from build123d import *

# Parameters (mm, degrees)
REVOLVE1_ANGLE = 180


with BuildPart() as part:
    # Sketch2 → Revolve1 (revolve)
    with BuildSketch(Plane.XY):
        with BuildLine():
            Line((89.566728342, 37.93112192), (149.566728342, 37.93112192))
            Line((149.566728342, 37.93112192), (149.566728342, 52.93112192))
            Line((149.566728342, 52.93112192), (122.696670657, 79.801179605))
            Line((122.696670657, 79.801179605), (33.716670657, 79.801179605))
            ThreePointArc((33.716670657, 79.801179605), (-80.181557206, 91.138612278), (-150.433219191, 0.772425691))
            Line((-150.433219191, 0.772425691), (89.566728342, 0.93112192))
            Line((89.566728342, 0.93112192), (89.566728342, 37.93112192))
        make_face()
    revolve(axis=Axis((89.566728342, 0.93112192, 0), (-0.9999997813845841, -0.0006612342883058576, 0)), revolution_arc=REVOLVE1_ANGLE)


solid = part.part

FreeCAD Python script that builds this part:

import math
import FreeCAD as App
import Part
import Sketcher

V = App.Vector
Q = App.Units.Quantity

doc = App.newDocument("Part")
body = doc.addObject("PartDesign::Body", "Body")

sketch1 = doc.addObject("Sketcher::SketchObject", "Sketch")
body.addObject(sketch1)
sketch1.AttachmentSupport = (doc.XY_Plane, [""])
sketch1.MapMode = "FlatFace"
sketch1.addGeometry([
    Part.LineSegment(V(89.566728, 37.931122, 0), V(149.566728, 37.931122, 0)),
    Part.LineSegment(V(149.566728, 37.931122, 0), V(149.566728, 52.931122, 0)),
    Part.LineSegment(V(149.566728, 52.931122, 0), V(122.696671, 79.80118, 0)),
    Part.LineSegment(V(122.696671, 79.80118, 0), V(33.716671, 79.80118, 0)),
    Part.ArcOfCircle(Part.Circle(V(-33.496517, -17.645147, 0), V(0, 0, 1), 118.378204), math.radians(55.404195), math.radians(171.049421)),
    Part.LineSegment(V(-150.433219, 0.772426, 0), V(89.566728, 0.931122, 0)),
    Part.LineSegment(V(89.566728, 0.931122, 0), V(89.566728, 37.931122, 0)),
], False)
sketch1.addGeometry(Part.LineSegment(V(149.601086, 0.970819, 0), V(-150.433219, 0.772426, 0)), True)
sketch1.addConstraint([
    Sketcher.Constraint("Coincident", 0, 2, 1, 1),
    Sketcher.Constraint("Coincident", 1, 2, 2, 1),
    Sketcher.Constraint("Coincident", 2, 2, 3, 1),
    Sketcher.Constraint("Coincident", 3, 2, 4, 1),
    Sketcher.Constraint("Coincident", 4, 2, 5, 1),
    Sketcher.Constraint("Coincident", 5, 2, 6, 1),
    Sketcher.Constraint("Coincident", 6, 2, 0, 1),
    Sketcher.Constraint("Horizontal", 0),
    Sketcher.Constraint("Vertical", 1),
    Sketcher.Constraint("Horizontal", 3),
    Sketcher.Constraint("Vertical", 6),
    Sketcher.Constraint("Coincident", 7, 2, 4, 2),
    Sketcher.Constraint("Parallel", 5, 7),
    Sketcher.Constraint("DistanceX", 0, 1, 0, 2, 60.0),
    Sketcher.Constraint("DistanceY", 1, 1, 1, 2, 15.0),
    Sketcher.Constraint("DistanceY", 6, 1, 6, 2, 37.0),
    Sketcher.Constraint("Angle", 2, Q("135 deg")),
    Sketcher.Constraint("Distance", 2, 38.0),
    Sketcher.Constraint("Distance", 5, 240.0),
    Sketcher.Constraint("DistanceX", 3, 2, 3, 1, 88.98),
    Sketcher.Constraint("Radius", 4, 118.378204),
    Sketcher.Constraint("DistanceX", 4, 2, 4, 3, 116.936702),
    Sketcher.Constraint("Distance", 7, 300.034371),
    Sketcher.Constraint("DistanceX", -1, 1, 0, 2, 149.566728),
    Sketcher.Constraint("DistanceY", -1, 1, 0, 2, 37.931122),
])
revolution = doc.addObject("PartDesign::Revolution", "Revolution")
body.addObject(revolution)
revolution.Profile = sketch1
revolution.ReferenceAxis = (sketch1, ["Axis0"])
revolution.Angle = 180

doc.recompute()
